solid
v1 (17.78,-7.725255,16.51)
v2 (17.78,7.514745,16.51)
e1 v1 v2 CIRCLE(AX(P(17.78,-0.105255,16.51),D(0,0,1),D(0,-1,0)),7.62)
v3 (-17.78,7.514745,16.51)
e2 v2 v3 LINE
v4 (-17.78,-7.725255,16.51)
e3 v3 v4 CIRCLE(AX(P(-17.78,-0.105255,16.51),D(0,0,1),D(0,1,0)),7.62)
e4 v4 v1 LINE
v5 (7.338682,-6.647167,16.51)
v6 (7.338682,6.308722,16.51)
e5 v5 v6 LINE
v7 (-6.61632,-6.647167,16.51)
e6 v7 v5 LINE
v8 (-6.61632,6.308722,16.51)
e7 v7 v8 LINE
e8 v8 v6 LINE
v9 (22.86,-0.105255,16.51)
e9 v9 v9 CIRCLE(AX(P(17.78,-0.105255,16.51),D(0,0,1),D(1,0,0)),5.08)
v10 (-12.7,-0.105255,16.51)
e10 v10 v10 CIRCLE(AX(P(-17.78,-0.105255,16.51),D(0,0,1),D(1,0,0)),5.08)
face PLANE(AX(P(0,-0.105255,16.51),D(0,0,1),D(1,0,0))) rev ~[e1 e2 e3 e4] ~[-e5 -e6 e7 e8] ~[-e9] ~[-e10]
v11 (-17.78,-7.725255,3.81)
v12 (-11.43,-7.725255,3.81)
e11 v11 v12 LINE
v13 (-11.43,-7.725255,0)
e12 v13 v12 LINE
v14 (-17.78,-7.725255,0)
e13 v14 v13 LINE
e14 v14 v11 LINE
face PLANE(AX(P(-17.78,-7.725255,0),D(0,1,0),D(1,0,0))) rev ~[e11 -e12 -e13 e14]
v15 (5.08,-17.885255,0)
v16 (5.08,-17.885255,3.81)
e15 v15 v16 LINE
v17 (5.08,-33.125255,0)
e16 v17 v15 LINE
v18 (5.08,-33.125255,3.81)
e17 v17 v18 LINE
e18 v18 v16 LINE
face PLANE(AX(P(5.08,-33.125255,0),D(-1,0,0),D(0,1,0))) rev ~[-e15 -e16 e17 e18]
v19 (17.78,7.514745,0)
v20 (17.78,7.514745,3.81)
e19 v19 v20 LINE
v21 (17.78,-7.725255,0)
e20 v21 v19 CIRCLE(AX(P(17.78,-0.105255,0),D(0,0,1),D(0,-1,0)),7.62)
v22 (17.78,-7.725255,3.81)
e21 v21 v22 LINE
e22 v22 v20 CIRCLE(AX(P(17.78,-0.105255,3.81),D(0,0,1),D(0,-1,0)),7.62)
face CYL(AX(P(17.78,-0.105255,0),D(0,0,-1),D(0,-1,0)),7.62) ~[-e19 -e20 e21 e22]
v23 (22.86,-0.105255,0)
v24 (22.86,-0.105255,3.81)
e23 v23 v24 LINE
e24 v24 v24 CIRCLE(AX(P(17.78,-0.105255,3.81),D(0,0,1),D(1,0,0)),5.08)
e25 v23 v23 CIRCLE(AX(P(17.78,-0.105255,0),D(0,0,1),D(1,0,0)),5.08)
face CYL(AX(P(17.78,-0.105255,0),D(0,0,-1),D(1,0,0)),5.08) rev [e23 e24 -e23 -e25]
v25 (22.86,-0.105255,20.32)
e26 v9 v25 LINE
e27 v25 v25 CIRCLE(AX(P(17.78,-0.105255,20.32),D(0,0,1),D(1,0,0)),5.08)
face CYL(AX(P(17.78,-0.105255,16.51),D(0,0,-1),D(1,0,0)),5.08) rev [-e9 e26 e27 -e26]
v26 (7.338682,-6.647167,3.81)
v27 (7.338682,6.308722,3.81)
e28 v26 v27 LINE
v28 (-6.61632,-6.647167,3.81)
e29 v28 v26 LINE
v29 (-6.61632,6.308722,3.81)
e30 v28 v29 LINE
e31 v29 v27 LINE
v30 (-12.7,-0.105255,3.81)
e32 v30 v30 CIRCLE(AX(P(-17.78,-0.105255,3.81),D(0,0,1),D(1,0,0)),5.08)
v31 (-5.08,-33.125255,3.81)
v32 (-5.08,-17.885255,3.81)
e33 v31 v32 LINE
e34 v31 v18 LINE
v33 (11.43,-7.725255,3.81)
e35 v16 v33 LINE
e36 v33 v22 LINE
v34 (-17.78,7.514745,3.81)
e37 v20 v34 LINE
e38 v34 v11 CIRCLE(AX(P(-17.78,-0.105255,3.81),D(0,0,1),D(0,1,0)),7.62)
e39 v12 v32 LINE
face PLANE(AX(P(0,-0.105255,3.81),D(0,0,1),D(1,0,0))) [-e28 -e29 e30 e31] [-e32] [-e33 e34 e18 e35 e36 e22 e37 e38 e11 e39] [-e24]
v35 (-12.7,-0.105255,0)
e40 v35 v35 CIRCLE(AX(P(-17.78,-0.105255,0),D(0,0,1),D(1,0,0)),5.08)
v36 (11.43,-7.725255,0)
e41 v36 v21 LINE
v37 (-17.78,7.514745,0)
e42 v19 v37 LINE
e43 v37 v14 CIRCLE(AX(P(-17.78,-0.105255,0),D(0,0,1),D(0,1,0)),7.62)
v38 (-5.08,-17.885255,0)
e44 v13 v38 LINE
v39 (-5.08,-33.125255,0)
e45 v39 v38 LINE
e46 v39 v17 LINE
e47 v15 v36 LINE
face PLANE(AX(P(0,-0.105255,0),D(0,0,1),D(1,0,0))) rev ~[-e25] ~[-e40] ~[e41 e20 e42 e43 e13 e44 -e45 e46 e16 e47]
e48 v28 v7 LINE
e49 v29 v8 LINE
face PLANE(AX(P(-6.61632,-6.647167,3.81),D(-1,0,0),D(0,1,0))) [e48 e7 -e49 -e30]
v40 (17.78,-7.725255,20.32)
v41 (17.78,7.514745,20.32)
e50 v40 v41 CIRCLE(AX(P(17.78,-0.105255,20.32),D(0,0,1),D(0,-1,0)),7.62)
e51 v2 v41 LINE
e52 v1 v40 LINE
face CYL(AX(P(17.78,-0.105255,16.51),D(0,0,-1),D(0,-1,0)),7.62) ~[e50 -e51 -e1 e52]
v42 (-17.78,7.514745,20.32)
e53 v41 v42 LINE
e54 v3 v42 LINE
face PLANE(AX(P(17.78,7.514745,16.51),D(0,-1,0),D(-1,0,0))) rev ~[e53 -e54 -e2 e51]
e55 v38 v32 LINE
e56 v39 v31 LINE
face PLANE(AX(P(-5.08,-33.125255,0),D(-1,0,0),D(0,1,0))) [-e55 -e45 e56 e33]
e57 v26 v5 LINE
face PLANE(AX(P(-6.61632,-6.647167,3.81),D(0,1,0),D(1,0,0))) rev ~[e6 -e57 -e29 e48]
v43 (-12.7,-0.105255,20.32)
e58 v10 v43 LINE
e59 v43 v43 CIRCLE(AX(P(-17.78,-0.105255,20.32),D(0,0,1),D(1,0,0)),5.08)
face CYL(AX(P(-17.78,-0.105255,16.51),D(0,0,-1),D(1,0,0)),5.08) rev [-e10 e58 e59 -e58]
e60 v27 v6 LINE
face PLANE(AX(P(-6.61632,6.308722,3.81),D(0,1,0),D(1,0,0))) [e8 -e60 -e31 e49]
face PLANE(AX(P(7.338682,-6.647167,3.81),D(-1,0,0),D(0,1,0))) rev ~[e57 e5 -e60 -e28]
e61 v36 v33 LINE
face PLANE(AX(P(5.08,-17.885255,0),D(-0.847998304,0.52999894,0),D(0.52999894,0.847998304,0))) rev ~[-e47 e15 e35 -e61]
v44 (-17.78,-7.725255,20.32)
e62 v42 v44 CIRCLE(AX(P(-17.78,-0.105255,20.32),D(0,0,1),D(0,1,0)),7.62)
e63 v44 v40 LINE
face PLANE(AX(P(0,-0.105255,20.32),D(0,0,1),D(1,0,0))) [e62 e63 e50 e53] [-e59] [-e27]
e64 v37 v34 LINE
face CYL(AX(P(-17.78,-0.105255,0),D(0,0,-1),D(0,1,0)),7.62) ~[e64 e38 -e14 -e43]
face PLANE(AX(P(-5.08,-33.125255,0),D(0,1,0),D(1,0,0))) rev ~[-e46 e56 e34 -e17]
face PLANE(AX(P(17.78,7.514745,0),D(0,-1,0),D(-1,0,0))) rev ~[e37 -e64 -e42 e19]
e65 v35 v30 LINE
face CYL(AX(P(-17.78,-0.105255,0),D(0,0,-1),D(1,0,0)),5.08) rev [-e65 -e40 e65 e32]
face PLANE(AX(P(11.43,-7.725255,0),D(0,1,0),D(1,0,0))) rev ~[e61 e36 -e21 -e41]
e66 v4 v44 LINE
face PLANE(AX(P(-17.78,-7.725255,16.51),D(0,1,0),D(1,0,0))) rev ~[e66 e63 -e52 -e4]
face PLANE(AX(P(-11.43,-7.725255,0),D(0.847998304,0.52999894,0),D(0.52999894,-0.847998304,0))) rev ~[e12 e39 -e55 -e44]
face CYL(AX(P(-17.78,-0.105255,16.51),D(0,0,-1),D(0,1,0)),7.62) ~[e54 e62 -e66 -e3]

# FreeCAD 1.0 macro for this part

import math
import FreeCAD as App
import Part
import Sketcher
from FreeCAD import Vector
Q = App.Units.Quantity


def add_polygon(sketch, points):
    """Adds a closed chain of lines whose ends are joined by coincident constraints."""
    first, n = sketch.GeometryCount, len(points)
    for a, b in zip(points, points[1:] + points[:1]):
        sketch.addGeometry(Part.LineSegment(App.Vector(*a, 0), App.Vector(*b, 0)), False)
    for i in range(n):
        sketch.addConstraint(Sketcher.Constraint("Coincident", first + i, 2, first + (i + 1) % n, 1))

doc = App.newDocument("Part")
params = doc.addObject("Spreadsheet::Sheet", "Params")
for row, (alias, value) in enumerate([
    ("sketch1_diameter", "0.4 in"),
    ("sketch1_radius", "0.3 in"),
    ("sketch1_width", "1.4 in"),
    ("sketch1_width2", "0.4 in"),
    ("sketch1_height", "0.6 in"),
    ("pad1_length", "0.15 in"),
    ("pad2_length", "0.5 in"),
    ("sketch3_diameter", "0.4 in"),
    ("sketch3_radius", "0.3 in"),
    ("sketch3_width", "1.4 in"),
    ("pad3_length", "0.15 in"),
], start=1):
    params.set(f"A{row}", alias)
    params.set(f"B{row}", "=" + value)
    params.setAlias(f"B{row}", alias)

body = doc.addObject("PartDesign::Body", "Body")

sketch1 = doc.addObject("Sketcher::SketchObject", "Sketch")
body.addObject(sketch1)
sketch1.AttachmentSupport = (doc.XY_Plane, [""])
sketch1.MapMode = "FlatFace"
sketch1.addGeometry([
    Part.LineSegment(Vector(18, 8, 0), Vector(-18, 8, 0)),
    Part.ArcOfCircle(Part.Circle(Vector(-18, 0, 0), Vector(0, 0, 1), 8), math.radians(90), math.radians(270)),
    Part.LineSegment(Vector(-18, -8, 0), Vector(-11, -8, 0)),
    Part.LineSegment(Vector(-11, -8, 0), Vector(-5, -18, 0)),
    Part.LineSegment(Vector(-5, -18, 0), Vector(-5, -33, 0)),
    Part.LineSegment(Vector(-5, -33, 0), Vector(5, -33, 0)),
    Part.LineSegment(Vector(5, -33, 0), Vector(5, -18, 0)),
    Part.LineSegment(Vector(5, -18, 0), Vector(11, -8, 0)),
    Part.LineSegment(Vector(11, -8, 0), Vector(18, -8, 0)),
    Part.ArcOfCircle(Part.Circle(Vector(18, 0, 0), Vector(0, 0, 1), 8), math.radians(-90), math.radians(90)),
    Part.Circle(Vector(-18, 0, 0), Vector(0, 0, 1), 5),
    Part.Circle(Vector(18, 0, 0), Vector(0, 0, 1), 5),
], False)
sketch1.addConstraint([
    Sketcher.Constraint("Tangent", 0, 2, 1, 1),
    Sketcher.Constraint("Tangent", 1, 2, 2, 1),
    Sketcher.Constraint("Coincident", 2, 2, 3, 1),
    Sketcher.Constraint("Coincident", 3, 2, 4, 1),
    Sketcher.Constraint("Coincident", 4, 2, 5, 1),
    Sketcher.Constraint("Coincident", 5, 2, 6, 1),
    Sketcher.Constraint("Coincident", 6, 2, 7, 1),
    Sketcher.Constraint("Coincident", 7, 2, 8, 1),
    Sketcher.Constraint("Tangent", 8, 2, 9, 1),
    Sketcher.Constraint("Tangent", 9, 2, 0, 1),
    Sketcher.Constraint("Horizontal", 0),
    Sketcher.Constraint("Horizontal", 2),
    Sketcher.Constraint("Vertical", 4),
    Sketcher.Constraint("Horizontal", 5),
    Sketcher.Constraint("Vertical", 6),
    Sketcher.Constraint("Horizontal", 8),
    Sketcher.Constraint("Coincident", 10, 3, 1, 3),
    Sketcher.Constraint("Coincident", 11, 3, 9, 3),
    Sketcher.Constraint("Equal", 1, 9),
    Sketcher.Constraint("Equal", 10, 11),
    Sketcher.Constraint("Symmetric", 3, 2, 6, 2, -2),
    Sketcher.Constraint("Equal", 2, 8),
    Sketcher.Constraint("Equal", 3, 7),
    Sketcher.Constraint("Diameter", 10, Q("0.4 in")),
    Sketcher.Constraint("Radius", 1, Q("0.3 in")),
    Sketcher.Constraint("DistanceX", 0, 2, 0, 1, Q("1.4 in")),
    Sketcher.Constraint("DistanceX", 5, 1, 5, 2, Q("0.4 in")),
    Sketcher.Constraint("DistanceY", 4, 2, 4, 1, Q("0.6 in")),
    Sketcher.Constraint("DistanceY", 3, 2, 0, 2, Q("1 in")),
    Sketcher.Constraint("DistanceX", 2, 1, 2, 2, Q("0.25 in")),
    Sketcher.Constraint("DistanceY", 1, 3, -1, 1, 0.105255),
])
sketch1.setExpression("Constraints[23]", "Params.sketch1_diameter")
sketch1.setExpression("Constraints[24]", "Params.sketch1_radius")
sketch1.setExpression("Constraints[25]", "Params.sketch1_width")
sketch1.setExpression("Constraints[26]", "Params.sketch1_width2")
sketch1.setExpression("Constraints[27]", "Params.sketch1_height")
pad1 = doc.addObject("PartDesign::Pad", "Pad")
body.addObject(pad1)
pad1.Profile = sketch1
pad1.setExpression("Length", "Params.pad1_length")

sketch2 = doc.addObject("Sketcher::SketchObject", "Sketch001")
body.addObject(sketch2)
sketch2.AttachmentSupport = (doc.XY_Plane, [""])
sketch2.MapMode = "FlatFace"
sketch2.AttachmentOffset = App.Placement(Vector(0, 0, 0.15 * 25.4), App.Rotation())
add_polygon(sketch2, [(-7, 6), (-7, -7), (7, -7), (7, 6)])
sketch2.addConstraint([
    Sketcher.Constraint("Vertical", 0),
    Sketcher.Constraint("Horizontal", 1),
    Sketcher.Constraint("Vertical", 2),
    Sketcher.Constraint("Horizontal", 3),
    Sketcher.Constraint("DistanceX", 1, 1, 1, 2, 13.955001),
    Sketcher.Constraint("DistanceY", 0, 2, 0, 1, 12.955889),
    Sketcher.Constraint("DistanceX", 0, 2, -1, 1, 6.61632),
    Sketcher.Constraint("DistanceY", -1, 1, 2, 2, 6.308722),
])
pad2 = doc.addObject("PartDesign::Pad", "Pad001")
body.addObject(pad2)
pad2.Profile = sketch2
pad2.setExpression("Length", "Params.pad2_length")

sketch3 = doc.addObject("Sketcher::SketchObject", "Sketch002")
body.addObject(sketch3)
sketch3.AttachmentSupport = (doc.XY_Plane, [""])
sketch3.MapMode = "FlatFace"
sketch3.AttachmentOffset = App.Placement(Vector(0, 0, 0.65 * 25.4), App.Rotation())
sketch3.addGeometry([
    Part.LineSegment(Vector(18, 8, 0), Vector(-18, 8, 0)),
    Part.ArcOfCircle(Part.Circle(Vector(-18, 0, 0), Vector(0, 0, 1), 8), math.radians(90), math.radians(270)),
    Part.LineSegment(Vector(-18, -8, 0), Vector(18, -8, 0)),
    Part.ArcOfCircle(Part.Circle(Vector(18, 0, 0), Vector(0, 0, 1), 8), math.radians(-90), math.radians(90)),
    Part.Circle(Vector(-18, 0, 0), Vector(0, 0, 1), 5),
    Part.Circle(Vector(18, 0, 0), Vector(0, 0, 1), 5),
], False)
sketch3.addConstraint([
    Sketcher.Constraint("Tangent", 0, 2, 1, 1),
    Sketcher.Constraint("Tangent", 1, 2, 2, 1),
    Sketcher.Constraint("Tangent", 2, 2, 3, 1),
    Sketcher.Constraint("Tangent", 3, 2, 0, 1),
    Sketcher.Constraint("Horizontal", 0),
    Sketcher.Constraint("Horizontal", 2),
    Sketcher.Constraint("Coincident", 4, 3, 1, 3),
    Sketcher.Constraint("Coincident", 5, 3, 3, 3),
    Sketcher.Constraint("Equal", 4, 5),
    Sketcher.Constraint("Diameter", 4, Q("0.4 in")),
    Sketcher.Constraint("Radius", 1, Q("0.3 in")),
    Sketcher.Constraint("DistanceX", 0, 2, 0, 1, Q("1.4 in")),
    Sketcher.Constraint("DistanceX", 1, 3, -1, 1, Q("0.7 in")),
    Sketcher.Constraint("DistanceY", 1, 3, -1, 1, 0.105255),
])
sketch3.setExpression("Constraints[9]", "Params.sketch3_diameter")
sketch3.setExpression("Constraints[10]", "Params.sketch3_radius")
sketch3.setExpression("Constraints[11]", "Params.sketch3_width")
pad3 = doc.addObject("PartDesign::Pad", "Pad002")
body.addObject(pad3)
pad3.Profile = sketch3
pad3.setExpression("Length", "Params.pad3_length")

doc.recompute()
